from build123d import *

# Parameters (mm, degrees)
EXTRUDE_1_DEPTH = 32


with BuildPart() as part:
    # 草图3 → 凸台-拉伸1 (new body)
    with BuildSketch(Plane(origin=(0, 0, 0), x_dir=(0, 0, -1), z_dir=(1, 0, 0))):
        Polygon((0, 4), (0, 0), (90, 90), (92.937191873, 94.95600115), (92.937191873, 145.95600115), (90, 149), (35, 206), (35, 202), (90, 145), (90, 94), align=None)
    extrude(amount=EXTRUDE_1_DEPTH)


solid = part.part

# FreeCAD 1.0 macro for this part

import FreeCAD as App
import Part
import Sketcher
from FreeCAD import Vector
Q = App.Units.Quantity


def add_polygon(sketch, points):
    """Adds a closed chain of lines whose ends are joined by coincident constraints."""
    first, n = sketch.GeometryCount, len(points)
    for a, b in zip(points, points[1:] + points[:1]):
        sketch.addGeometry(Part.LineSegment(App.Vector(*a, 0), App.Vector(*b, 0)), False)
    for i in range(n):
        sketch.addConstraint(Sketcher.Constraint("Coincident", first + i, 2, first + (i + 1) % n, 1))

doc = App.newDocument("Part")
params = doc.addObject("Spreadsheet::Sheet", "Params")
for row, (alias, value) in enumerate([
    ("sketch1_width", "4 mm"),
    ("sketch1_width2", "51 mm"),
    ("pad1_length", "32 mm"),
], start=1):
    params.set(f"A{row}", alias)
    params.set(f"B{row}", "=" + value)
    params.setAlias(f"B{row}", alias)

body = doc.addObject("PartDesign::Body", "Body")

# Sketch on YZ plane
sketch1 = body.newObject("Sketcher::SketchObject", "Sketch")
sketch1.AttachmentSupport = (doc.getObject("YZ_Plane"), [""])
sketch1.MapMode = "FlatFace"
add_polygon(sketch1, [(4, 0), (0, 0), (90, -90), (94.956001, -92.937192), (145.956001, -92.937192), (149, -90), (206, -35), (202, -35), (145, -90), (94, -90)])  # lines 0-9
sketch1.addConstraint(Sketcher.Constraint("Horizontal", 0))
sketch1.addConstraint(Sketcher.Constraint("Horizontal", 3))
sketch1.addConstraint(Sketcher.Constraint("Horizontal", 6))
sketch1.addConstraint(Sketcher.Constraint("Horizontal", 8))
sketch1.addConstraint(Sketcher.Constraint("Coincident", 0, 2, -1, 1))
sketch1.addConstraint(Sketcher.Constraint("Parallel", 4, 5))
sketch1.addConstraint(Sketcher.Constraint("Parallel", 5, 7))
sketch1.addConstraint(Sketcher.Constraint("Parallel", 1, 9))
sketch1.addConstraint(Sketcher.Constraint("Horizontal", 1, 2, 4, 2))
sketch1.addConstraint(Sketcher.Constraint("Horizontal", 4, 2, 7, 2))
sketch1.addConstraint(Sketcher.Constraint("Equal", 0, 6))
sketch1.addConstraint(Sketcher.Constraint("Equal", 3, 8))
sketch1.addConstraint(Sketcher.Constraint("DistanceX", 0, 2, 0, 1, Q("4 mm")))
sketch1.addConstraint(Sketcher.Constraint("DistanceX", 3, 1, 3, 2, Q("51 mm")))
sketch1.addConstraint(Sketcher.Constraint("Angle", 1, Q("-45 deg")))
sketch1.addConstraint(Sketcher.Constraint("DistanceX", -1, 1, 1, 2, Q("90 mm")))
sketch1.addConstraint(Sketcher.Constraint("DistanceX", -1, 1, 5, 2, Q("206 mm")))
sketch1.addConstraint(Sketcher.Constraint("DistanceY", 5, 2, -1, 1, Q("35 mm")))
sketch1.addConstraint(Sketcher.Constraint("DistanceX", -1, 1, 2, 2, Q("94.956001 mm")))
sketch1.setExpression("Constraints[22]", "Params.sketch1_width")
sketch1.setExpression("Constraints[23]", "Params.sketch1_width2")
pad1 = body.newObject("PartDesign::Pad", "Pad")
pad1.Profile = sketch1
pad1.setExpression("Length", "Params.pad1_length")

doc.recompute()
